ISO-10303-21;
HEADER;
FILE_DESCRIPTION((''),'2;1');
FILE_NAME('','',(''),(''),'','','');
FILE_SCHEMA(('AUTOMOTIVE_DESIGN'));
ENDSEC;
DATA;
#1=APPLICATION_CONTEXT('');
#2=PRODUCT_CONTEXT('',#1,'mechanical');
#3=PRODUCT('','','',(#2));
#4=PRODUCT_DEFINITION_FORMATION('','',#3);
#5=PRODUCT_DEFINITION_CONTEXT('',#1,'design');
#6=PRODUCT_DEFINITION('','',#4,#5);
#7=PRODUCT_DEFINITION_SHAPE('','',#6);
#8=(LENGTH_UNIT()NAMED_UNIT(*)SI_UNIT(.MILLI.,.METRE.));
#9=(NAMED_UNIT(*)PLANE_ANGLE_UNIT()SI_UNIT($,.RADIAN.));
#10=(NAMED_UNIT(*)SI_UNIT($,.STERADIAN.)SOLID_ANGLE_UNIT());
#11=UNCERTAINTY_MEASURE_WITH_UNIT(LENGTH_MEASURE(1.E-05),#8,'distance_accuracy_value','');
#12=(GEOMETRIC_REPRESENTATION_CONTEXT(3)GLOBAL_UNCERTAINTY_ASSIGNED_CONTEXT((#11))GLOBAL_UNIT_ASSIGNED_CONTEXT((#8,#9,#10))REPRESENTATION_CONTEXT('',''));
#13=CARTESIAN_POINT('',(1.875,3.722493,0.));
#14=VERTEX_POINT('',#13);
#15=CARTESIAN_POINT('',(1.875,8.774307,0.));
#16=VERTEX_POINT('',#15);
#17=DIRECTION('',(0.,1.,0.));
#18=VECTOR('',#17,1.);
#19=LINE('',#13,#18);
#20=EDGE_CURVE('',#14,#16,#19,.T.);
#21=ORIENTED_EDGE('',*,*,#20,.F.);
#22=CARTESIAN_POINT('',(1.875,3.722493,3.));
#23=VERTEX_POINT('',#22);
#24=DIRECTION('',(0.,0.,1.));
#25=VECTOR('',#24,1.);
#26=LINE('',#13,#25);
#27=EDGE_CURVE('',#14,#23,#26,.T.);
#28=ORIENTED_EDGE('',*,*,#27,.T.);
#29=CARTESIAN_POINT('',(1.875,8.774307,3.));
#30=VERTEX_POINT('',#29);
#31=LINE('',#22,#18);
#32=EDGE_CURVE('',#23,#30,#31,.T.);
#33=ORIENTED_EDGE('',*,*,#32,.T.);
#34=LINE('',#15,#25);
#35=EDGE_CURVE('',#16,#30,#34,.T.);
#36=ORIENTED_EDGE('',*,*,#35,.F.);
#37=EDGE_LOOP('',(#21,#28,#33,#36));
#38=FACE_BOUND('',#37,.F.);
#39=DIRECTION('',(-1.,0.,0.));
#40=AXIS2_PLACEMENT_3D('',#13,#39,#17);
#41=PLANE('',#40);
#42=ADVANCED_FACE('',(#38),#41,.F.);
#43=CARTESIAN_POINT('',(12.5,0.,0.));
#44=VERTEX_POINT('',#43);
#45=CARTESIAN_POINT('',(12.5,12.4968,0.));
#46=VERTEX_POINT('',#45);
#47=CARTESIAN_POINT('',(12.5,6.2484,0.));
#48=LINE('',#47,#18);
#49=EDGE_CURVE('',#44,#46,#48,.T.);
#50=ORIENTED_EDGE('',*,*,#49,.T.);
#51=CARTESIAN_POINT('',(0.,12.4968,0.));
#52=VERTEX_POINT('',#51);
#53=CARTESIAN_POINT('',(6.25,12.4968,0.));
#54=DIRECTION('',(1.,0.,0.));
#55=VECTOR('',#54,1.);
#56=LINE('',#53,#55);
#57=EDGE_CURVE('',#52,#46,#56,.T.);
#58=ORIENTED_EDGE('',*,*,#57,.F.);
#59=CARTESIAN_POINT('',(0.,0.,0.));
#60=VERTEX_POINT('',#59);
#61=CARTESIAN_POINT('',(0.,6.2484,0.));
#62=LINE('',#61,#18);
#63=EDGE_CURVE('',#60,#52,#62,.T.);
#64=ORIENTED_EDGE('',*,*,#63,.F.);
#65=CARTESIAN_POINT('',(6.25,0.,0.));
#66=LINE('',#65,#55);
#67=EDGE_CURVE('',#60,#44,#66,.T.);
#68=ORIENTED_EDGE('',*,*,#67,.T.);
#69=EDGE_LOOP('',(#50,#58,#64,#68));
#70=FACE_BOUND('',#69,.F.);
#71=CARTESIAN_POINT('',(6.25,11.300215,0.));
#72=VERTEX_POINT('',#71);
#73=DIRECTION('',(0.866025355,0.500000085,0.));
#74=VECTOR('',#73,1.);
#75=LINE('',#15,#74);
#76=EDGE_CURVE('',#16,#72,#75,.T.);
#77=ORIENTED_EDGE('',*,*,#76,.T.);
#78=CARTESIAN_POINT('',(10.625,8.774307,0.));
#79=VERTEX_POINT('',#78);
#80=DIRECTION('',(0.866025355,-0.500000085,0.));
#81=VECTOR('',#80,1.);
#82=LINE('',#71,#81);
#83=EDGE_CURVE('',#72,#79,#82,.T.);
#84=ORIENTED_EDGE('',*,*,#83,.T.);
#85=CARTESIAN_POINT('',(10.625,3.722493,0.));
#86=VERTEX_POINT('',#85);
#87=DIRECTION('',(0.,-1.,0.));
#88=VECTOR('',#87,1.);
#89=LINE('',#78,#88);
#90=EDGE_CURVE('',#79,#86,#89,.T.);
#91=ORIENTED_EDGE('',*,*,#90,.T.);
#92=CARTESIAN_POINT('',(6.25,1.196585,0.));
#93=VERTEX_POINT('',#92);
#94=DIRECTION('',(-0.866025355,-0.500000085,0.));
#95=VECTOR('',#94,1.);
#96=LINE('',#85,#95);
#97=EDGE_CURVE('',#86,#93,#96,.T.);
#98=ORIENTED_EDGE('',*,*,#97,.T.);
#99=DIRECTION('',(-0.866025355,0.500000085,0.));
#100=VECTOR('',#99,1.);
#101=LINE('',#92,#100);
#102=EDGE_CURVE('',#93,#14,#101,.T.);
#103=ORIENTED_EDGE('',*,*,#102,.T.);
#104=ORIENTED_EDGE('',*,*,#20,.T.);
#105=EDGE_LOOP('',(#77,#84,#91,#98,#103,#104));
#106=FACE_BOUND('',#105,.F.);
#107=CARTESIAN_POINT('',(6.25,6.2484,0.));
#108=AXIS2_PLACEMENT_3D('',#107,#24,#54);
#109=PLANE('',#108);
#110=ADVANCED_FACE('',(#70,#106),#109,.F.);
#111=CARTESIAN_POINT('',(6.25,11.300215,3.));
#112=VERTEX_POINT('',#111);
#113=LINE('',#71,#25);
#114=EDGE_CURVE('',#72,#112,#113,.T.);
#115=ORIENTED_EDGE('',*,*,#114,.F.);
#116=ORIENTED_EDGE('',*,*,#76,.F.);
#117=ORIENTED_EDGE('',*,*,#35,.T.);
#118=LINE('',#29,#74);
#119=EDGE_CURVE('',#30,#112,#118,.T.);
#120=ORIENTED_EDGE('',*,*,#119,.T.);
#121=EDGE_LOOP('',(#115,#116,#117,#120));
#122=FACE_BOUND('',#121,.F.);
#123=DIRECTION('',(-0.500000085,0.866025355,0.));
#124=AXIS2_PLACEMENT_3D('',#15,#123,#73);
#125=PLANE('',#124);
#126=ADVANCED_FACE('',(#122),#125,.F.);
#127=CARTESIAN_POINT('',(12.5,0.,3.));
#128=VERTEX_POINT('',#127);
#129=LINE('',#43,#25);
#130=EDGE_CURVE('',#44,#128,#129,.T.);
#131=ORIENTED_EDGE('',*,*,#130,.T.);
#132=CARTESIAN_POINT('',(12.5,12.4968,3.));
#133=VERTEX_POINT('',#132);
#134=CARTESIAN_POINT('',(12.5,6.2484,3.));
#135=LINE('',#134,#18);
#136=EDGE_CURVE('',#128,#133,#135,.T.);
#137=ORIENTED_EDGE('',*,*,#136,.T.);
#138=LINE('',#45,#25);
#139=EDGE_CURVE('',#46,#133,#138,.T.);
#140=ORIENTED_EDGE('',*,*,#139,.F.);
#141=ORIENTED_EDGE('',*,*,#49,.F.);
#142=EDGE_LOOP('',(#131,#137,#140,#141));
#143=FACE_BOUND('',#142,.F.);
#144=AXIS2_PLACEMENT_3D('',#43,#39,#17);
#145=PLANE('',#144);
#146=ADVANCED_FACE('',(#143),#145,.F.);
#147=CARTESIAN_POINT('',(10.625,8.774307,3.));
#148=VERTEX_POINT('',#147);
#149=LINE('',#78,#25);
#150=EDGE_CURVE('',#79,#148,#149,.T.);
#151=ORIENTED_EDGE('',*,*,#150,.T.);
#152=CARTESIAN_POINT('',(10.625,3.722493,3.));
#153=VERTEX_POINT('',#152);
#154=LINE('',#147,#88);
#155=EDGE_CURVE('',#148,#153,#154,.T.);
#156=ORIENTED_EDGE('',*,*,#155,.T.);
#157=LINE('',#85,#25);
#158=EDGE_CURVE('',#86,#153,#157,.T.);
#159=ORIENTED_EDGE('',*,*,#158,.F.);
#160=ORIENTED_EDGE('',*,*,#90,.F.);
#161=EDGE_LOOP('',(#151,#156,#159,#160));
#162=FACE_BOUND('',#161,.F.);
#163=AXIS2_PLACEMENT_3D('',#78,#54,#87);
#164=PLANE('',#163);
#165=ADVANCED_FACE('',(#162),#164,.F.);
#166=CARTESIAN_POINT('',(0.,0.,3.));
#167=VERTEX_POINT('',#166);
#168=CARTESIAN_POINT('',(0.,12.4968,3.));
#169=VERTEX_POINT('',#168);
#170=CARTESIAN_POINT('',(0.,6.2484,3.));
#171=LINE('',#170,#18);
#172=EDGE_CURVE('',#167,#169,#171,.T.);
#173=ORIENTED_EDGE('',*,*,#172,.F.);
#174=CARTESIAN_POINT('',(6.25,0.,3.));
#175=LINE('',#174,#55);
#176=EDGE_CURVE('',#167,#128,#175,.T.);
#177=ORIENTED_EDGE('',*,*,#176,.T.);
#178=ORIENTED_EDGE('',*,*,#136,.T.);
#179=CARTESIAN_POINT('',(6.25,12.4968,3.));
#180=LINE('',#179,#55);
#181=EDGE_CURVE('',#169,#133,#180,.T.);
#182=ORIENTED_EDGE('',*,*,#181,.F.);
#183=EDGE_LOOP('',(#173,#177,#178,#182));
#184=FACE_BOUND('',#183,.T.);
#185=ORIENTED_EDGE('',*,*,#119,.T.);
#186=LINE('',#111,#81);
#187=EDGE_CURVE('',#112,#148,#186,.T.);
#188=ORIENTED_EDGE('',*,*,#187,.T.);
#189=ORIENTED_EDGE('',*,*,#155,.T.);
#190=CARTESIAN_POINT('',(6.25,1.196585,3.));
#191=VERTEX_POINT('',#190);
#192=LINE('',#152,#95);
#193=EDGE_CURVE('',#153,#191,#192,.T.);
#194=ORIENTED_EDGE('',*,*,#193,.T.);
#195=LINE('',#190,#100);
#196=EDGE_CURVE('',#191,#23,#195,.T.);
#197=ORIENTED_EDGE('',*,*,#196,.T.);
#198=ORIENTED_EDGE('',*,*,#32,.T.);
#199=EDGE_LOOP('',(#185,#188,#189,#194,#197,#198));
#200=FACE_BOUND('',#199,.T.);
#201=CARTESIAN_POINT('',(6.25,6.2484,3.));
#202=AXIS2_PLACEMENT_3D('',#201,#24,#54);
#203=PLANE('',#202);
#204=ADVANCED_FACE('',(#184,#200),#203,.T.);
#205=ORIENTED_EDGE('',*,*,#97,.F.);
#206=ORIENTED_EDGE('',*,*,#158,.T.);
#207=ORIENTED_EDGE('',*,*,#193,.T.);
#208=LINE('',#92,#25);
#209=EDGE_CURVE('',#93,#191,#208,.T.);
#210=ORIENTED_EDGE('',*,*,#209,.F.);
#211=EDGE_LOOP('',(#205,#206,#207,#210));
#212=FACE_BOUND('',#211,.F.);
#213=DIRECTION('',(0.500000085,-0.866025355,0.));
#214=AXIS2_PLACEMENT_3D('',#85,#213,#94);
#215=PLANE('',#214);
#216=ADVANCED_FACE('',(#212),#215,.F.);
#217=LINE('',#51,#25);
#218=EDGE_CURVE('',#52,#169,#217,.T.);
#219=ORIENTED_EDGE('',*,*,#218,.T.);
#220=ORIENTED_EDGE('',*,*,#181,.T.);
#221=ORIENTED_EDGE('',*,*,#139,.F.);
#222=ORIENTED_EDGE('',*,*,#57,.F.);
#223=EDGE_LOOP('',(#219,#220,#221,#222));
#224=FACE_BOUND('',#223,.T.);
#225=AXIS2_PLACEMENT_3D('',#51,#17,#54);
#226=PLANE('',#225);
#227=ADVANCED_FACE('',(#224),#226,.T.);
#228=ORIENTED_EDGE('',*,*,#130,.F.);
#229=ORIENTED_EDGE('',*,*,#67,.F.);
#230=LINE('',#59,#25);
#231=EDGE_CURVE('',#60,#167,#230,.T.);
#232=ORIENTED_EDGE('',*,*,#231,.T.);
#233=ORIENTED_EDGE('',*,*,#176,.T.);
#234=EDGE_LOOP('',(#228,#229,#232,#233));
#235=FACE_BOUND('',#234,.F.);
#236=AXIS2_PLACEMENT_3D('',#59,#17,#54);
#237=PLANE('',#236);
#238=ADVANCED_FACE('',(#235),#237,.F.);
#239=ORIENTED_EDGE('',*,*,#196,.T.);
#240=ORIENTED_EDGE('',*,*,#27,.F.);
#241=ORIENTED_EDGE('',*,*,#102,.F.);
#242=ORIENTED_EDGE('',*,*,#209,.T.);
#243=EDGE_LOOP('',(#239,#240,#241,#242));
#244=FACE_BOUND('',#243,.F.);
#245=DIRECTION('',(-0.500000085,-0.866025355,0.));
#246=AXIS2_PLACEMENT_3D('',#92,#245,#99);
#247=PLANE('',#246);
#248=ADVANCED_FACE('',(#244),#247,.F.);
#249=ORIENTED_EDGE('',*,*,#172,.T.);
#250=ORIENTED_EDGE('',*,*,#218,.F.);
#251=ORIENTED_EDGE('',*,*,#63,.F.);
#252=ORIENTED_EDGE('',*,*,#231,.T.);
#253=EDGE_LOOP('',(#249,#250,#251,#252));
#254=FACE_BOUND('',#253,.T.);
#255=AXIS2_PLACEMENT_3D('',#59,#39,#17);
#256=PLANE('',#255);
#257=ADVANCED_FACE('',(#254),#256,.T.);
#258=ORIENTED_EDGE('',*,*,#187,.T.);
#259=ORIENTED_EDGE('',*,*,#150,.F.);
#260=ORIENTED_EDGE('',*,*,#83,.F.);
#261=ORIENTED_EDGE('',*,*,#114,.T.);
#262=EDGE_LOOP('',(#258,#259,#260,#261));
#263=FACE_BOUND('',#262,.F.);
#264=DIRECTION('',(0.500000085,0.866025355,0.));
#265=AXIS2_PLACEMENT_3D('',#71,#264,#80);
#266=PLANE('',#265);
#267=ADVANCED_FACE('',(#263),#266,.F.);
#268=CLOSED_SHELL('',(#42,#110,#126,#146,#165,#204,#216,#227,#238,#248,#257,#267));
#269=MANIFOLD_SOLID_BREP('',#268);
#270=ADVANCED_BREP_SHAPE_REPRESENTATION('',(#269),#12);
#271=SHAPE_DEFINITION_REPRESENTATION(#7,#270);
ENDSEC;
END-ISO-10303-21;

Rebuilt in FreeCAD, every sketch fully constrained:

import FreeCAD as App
import Part
import Sketcher
Q = App.Units.Quantity


def add_polygon(sketch, points):
    """Adds a closed chain of lines whose ends are joined by coincident constraints."""
    first, n = sketch.GeometryCount, len(points)
    for a, b in zip(points, points[1:] + points[:1]):
        sketch.addGeometry(Part.LineSegment(App.Vector(*a, 0), App.Vector(*b, 0)), False)
    for i in range(n):
        sketch.addConstraint(Sketcher.Constraint("Coincident", first + i, 2, first + (i + 1) % n, 1))

doc = App.newDocument("Part")
body = doc.addObject("PartDesign::Body", "Body")

# Sketch on XY plane
sketch1 = body.newObject("Sketcher::SketchObject", "Sketch")
sketch1.AttachmentSupport = (doc.getObject("XY_Plane"), [""])
sketch1.MapMode = "FlatFace"
add_polygon(sketch1, [(0, 12), (0, 0), (12, 0), (12, 12)])  # lines 0-3
add_polygon(sketch1, [(2, 9), (6, 11), (11, 9), (11, 4), (6, 1), (2, 4)])  # lines 4-9
sketch1.addConstraint(Sketcher.Constraint("Vertical", 0))
sketch1.addConstraint(Sketcher.Constraint("Horizontal", 1))
sketch1.addConstraint(Sketcher.Constraint("Vertical", 2))
sketch1.addConstraint(Sketcher.Constraint("Horizontal", 3))
sketch1.addConstraint(Sketcher.Constraint("Vertical", 6))
sketch1.addConstraint(Sketcher.Constraint("Vertical", 9))
sketch1.addConstraint(Sketcher.Constraint("Coincident", 0, 2, -1, 1))
sketch1.addConstraint(Sketcher.Constraint("Parallel", 4, 7))
sketch1.addConstraint(Sketcher.Constraint("Parallel", 5, 8))
sketch1.addConstraint(Sketcher.Constraint("Horizontal", 6, 2, 8, 2))
sketch1.addConstraint(Sketcher.Constraint("Horizontal", 5, 2, 9, 2))
sketch1.addConstraint(Sketcher.Constraint("Vertical", 4, 2, 7, 2))
sketch1.addConstraint(Sketcher.Constraint("Angle", 4, Q("30.000006 deg")))
sketch1.addConstraint(Sketcher.Constraint("DistanceX", 1, 1, 1, 2, Q("12.5 mm")))
sketch1.addConstraint(Sketcher.Constraint("DistanceX", -1, 1, 4, 2, Q("6.25 mm")))
sketch1.addConstraint(Sketcher.Constraint("DistanceX", 8, 2, 6, 2, Q("8.75 mm")))
sketch1.addConstraint(Sketcher.Constraint("DistanceY", 0, 2, 0, 1, Q("12.4968 mm")))
sketch1.addConstraint(Sketcher.Constraint("DistanceY", 6, 2, 6, 1, Q("5.051814 mm")))
sketch1.addConstraint(Sketcher.Constraint("DistanceY", -1, 1, 4, 2, Q("11.300215 mm")))
pad1 = body.newObject("PartDesign::Pad", "Pad")
pad1.Profile = sketch1
pad1.Length = 3

doc.recompute()
